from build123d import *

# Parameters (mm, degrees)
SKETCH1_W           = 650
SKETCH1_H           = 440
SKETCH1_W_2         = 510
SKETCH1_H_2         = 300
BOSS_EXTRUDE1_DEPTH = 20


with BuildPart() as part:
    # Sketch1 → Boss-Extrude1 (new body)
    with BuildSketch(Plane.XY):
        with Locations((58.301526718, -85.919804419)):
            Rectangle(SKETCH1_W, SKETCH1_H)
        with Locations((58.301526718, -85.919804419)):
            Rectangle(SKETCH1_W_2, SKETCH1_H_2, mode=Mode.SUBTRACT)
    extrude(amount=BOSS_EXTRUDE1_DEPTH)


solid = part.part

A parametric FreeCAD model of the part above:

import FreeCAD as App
import Part
import Sketcher

V = App.Vector
Q = App.Units.Quantity


def add_polygon(sketch, points):
    """Adds a closed chain of lines whose ends are joined by coincident constraints."""
    first, n = sketch.GeometryCount, len(points)
    for a, b in zip(points, points[1:] + points[:1]):
        sketch.addGeometry(Part.LineSegment(App.Vector(*a, 0), App.Vector(*b, 0)), False)
    for i in range(n):
        sketch.addConstraint(Sketcher.Constraint("Coincident", first + i, 2, first + (i + 1) % n, 1))

doc = App.newDocument("Part")
params = doc.addObject("Spreadsheet::Sheet", "Params")
for row, (alias, value) in enumerate([
    ("sketch1_width", "650 mm"),
    ("sketch1_width2", "510 mm"),
    ("sketch1_height", "440 mm"),
    ("sketch1_height2", "300 mm"),
    ("pad1_length", "20 mm"),
], start=1):
    params.set(f"A{row}", alias)
    params.set(f"B{row}", "=" + value)
    params.setAlias(f"B{row}", alias)

body = doc.addObject("PartDesign::Body", "Body")

sketch1 = doc.addObject("Sketcher::SketchObject", "Sketch")
body.addObject(sketch1)
sketch1.AttachmentSupport = (doc.XY_Plane, [""])
sketch1.MapMode = "FlatFace"
add_polygon(sketch1, [(-266.698473, 134.080196), (-266.698473, -305.919804), (383.301527, -305.919804), (383.301527, 134.080196)])
add_polygon(sketch1, [(313.301527, -235.919804), (-196.698473, -235.919804), (-196.698473, 64.080196), (313.301527, 64.080196)])
sketch1.addConstraint([
    Sketcher.Constraint("Vertical", 0),
    Sketcher.Constraint("Horizontal", 1),
    Sketcher.Constraint("Vertical", 2),
    Sketcher.Constraint("Horizontal", 3),
    Sketcher.Constraint("Horizontal", 4),
    Sketcher.Constraint("Vertical", 5),
    Sketcher.Constraint("Horizontal", 6),
    Sketcher.Constraint("Vertical", 7),
    Sketcher.Constraint("DistanceX", 1, 1, 1, 2, Q("650 mm")),
    Sketcher.Constraint("DistanceX", 4, 2, 4, 1, Q("510 mm")),
    Sketcher.Constraint("DistanceY", 0, 2, 0, 1, Q("440 mm")),
    Sketcher.Constraint("DistanceY", 5, 1, 5, 2, Q("300 mm")),
    Sketcher.Constraint("DistanceX", 0, 2, 4, 2, Q("70 mm")),
    Sketcher.Constraint("DistanceY", 0, 2, 4, 2, Q("70 mm")),
    Sketcher.Constraint("DistanceX", 0, 2, -1, 1, Q("266.698473 mm")),
    Sketcher.Constraint("DistanceY", 0, 2, -1, 1, Q("305.919804 mm")),
])
sketch1.setExpression("Constraints[16]", "Params.sketch1_width")
sketch1.setExpression("Constraints[17]", "Params.sketch1_width2")
sketch1.setExpression("Constraints[18]", "Params.sketch1_height")
sketch1.setExpression("Constraints[19]", "Params.sketch1_height2")
pad1 = doc.addObject("PartDesign::Pad", "Pad")
body.addObject(pad1)
pad1.Profile = sketch1
pad1.setExpression("Length", "Params.pad1_length")

doc.recompute()
